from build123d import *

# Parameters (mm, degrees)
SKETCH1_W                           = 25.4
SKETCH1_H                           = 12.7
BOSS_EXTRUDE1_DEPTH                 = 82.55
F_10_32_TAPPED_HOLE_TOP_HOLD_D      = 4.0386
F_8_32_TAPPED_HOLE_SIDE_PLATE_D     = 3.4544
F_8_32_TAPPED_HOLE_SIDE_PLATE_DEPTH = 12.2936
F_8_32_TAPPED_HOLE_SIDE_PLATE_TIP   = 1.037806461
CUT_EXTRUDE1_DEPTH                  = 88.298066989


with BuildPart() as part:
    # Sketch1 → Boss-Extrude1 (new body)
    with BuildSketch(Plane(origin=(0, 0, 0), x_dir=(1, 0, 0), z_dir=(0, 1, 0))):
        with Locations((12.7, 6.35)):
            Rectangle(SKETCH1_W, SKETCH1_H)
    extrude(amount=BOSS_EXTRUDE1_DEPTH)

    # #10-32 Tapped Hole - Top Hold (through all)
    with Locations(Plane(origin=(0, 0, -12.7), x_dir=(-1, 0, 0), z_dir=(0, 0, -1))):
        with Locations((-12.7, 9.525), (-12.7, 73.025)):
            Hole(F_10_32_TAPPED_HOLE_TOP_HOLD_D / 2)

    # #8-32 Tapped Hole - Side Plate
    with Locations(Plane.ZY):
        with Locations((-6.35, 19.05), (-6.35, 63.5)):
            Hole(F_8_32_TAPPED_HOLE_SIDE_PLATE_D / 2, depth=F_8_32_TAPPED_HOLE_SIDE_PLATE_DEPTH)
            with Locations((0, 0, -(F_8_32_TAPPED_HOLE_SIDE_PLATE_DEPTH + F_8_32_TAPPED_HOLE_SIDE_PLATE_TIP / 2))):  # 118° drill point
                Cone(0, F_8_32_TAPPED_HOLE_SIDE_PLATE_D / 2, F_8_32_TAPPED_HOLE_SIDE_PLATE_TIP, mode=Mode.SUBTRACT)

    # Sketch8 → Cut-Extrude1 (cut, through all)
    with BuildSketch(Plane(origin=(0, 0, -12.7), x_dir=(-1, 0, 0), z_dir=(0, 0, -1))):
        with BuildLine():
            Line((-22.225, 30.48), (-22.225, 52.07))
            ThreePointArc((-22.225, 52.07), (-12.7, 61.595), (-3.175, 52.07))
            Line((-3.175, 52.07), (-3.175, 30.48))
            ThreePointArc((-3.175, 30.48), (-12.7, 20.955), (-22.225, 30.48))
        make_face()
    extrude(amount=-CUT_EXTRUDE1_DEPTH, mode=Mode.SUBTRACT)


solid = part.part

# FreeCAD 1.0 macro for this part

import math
import FreeCAD as App
import Part
import Sketcher
Q = App.Units.Quantity

doc = App.newDocument("Part")
body = doc.addObject("PartDesign::Body", "Body")

sketch1 = body.newObject("Sketcher::SketchObject", "Sketch")
sketch1.AttachmentSupport = (doc.getObject("XZ_Plane"), [""])
sketch1.MapMode = "FlatFace"
sketch1.addGeometry([
    Part.LineSegment(App.Vector(0, -12.7, 0), App.Vector(0, 0, 0)),
    Part.LineSegment(App.Vector(0, 0, 0), App.Vector(25.4, 0, 0)),
    Part.LineSegment(App.Vector(25.4, 0, 0), App.Vector(25.4, -12.7, 0)),
    Part.LineSegment(App.Vector(25.4, -12.7, 0), App.Vector(0, -12.7, 0)),
], False)
sketch1.addConstraint([
    Sketcher.Constraint("Coincident", 0, 2, 1, 1),
    Sketcher.Constraint("Coincident", 1, 2, 2, 1),
    Sketcher.Constraint("Coincident", 2, 2, 3, 1),
    Sketcher.Constraint("Coincident", 3, 2, 0, 1),
    Sketcher.Constraint("Vertical", 0),
    Sketcher.Constraint("Horizontal", 1),
    Sketcher.Constraint("Vertical", 2),
    Sketcher.Constraint("Horizontal", 3),
    Sketcher.Constraint("Coincident", 0, 2, -1, 1),
    Sketcher.Constraint("DistanceX", 1, 1, 1, 2, Q("1 in")),
    Sketcher.Constraint("DistanceY", 0, 1, 0, 2, Q("0.5 in")),
])
pad1 = body.newObject("PartDesign::Pad", "Pad")
pad1.Profile = sketch1
pad1.Length = Q("3.25 in")
pad1.Reversed = True

sketch2 = body.newObject("Sketcher::SketchObject", "Sketch001")
sketch2.AttachmentSupport = (doc.getObject("XY_Plane"), [""])
sketch2.MapMode = "FlatFace"
sketch2.AttachmentOffset = App.Placement(App.Vector(0, 0, -0.5 * 25.4), App.Rotation())
sketch2.addGeometry([
    Part.Circle(App.Vector(12.7, 9.525, 0), App.Vector(0, 0, 1), 2.0193),
    Part.Circle(App.Vector(12.7, 73.025, 0), App.Vector(0, 0, 1), 2.0193),
], False)
sketch2.addConstraint([
    Sketcher.Constraint("Equal", 0, 1),
    Sketcher.Constraint("Vertical", 0, 3, 1, 3),
    Sketcher.Constraint("Diameter", 0, Q("0.159 in")),
    Sketcher.Constraint("DistanceX", -1, 1, 0, 3, Q("0.5 in")),
    Sketcher.Constraint("DistanceY", 0, 3, 1, 3, Q("2.5 in")),
    Sketcher.Constraint("DistanceY", -1, 1, 0, 3, Q("0.375 in")),
])
doc.recompute()
hole = body.newObject("PartDesign::Hole", "Hole")
hole.Profile = sketch2
hole.ThreadType = "None"
hole.Diameter = Q("0.159 in")
hole.DepthType = "ThroughAll"
hole.Reversed = True

sketch3 = body.newObject("Sketcher::SketchObject", "Sketch002")
sketch3.AttachmentSupport = (doc.getObject("YZ_Plane"), [""])
sketch3.MapMode = "FlatFace"
sketch3.addGeometry([
    Part.Circle(App.Vector(19.05, -6.35, 0), App.Vector(0, 0, 1), 1.7272),
    Part.Circle(App.Vector(63.5, -6.35, 0), App.Vector(0, 0, 1), 1.7272),
], False)
sketch3.addConstraint([
    Sketcher.Constraint("Equal", 0, 1),
    Sketcher.Constraint("Horizontal", 0, 3, 1, 3),
    Sketcher.Constraint("Diameter", 0, Q("0.136 in")),
    Sketcher.Constraint("DistanceX", -1, 1, 1, 3, Q("2.5 in")),
    Sketcher.Constraint("DistanceX", -1, 1, 0, 3, Q("0.75 in")),
    Sketcher.Constraint("DistanceY", 0, 3, -1, 1, Q("0.25 in")),
])
doc.recompute()
hole2 = body.newObject("PartDesign::Hole", "Hole001")
hole2.Profile = sketch3
hole2.ThreadType = "None"
hole2.Diameter = Q("0.136 in")
hole2.DepthType = "Dimension"
hole2.Depth = Q("0.484 in")
hole2.DrillPoint = "Angled"
hole2.DrillPointAngle = 118
hole2.Reversed = True

sketch4 = body.newObject("Sketcher::SketchObject", "Sketch003")
sketch4.AttachmentSupport = (doc.getObject("XY_Plane"), [""])
sketch4.MapMode = "FlatFace"
sketch4.AttachmentOffset = App.Placement(App.Vector(0, 0, -0.5 * 25.4), App.Rotation())
sketch4.addGeometry([
    Part.LineSegment(App.Vector(22.225, 52.07, 0), App.Vector(22.225, 30.48, 0)),
    Part.ArcOfCircle(Part.Circle(App.Vector(12.7, 30.48, 0), App.Vector(0, 0, 1), 9.525), math.radians(180), math.radians(360)),
    Part.LineSegment(App.Vector(3.175, 30.48, 0), App.Vector(3.175, 52.07, 0)),
    Part.ArcOfCircle(Part.Circle(App.Vector(12.7, 52.07, 0), App.Vector(0, 0, 1), 9.525), math.radians(0), math.radians(180)),
], False)
sketch4.addConstraint([
    Sketcher.Constraint("Tangent", 0, 2, 1, 2),
    Sketcher.Constraint("Tangent", 1, 1, 2, 1),
    Sketcher.Constraint("Tangent", 2, 2, 3, 2),
    Sketcher.Constraint("Tangent", 3, 1, 0, 1),
    Sketcher.Constraint("Vertical", 0),
    Sketcher.Constraint("Vertical", 2),
    Sketcher.Constraint("Radius", 1, Q("0.375 in")),
    Sketcher.Constraint("DistanceY", 0, 2, 0, 1, Q("0.85 in")),
    Sketcher.Constraint("DistanceX", -1, 1, 1, 3, Q("0.5 in")),
    Sketcher.Constraint("DistanceY", -1, 1, 1, 3, Q("1.2 in")),
])
pocket1 = body.newObject("PartDesign::Pocket", "Pocket")
pocket1.Profile = sketch4
pocket1.Type = "ThroughAll"
pocket1.Reversed = True

doc.recompute()
